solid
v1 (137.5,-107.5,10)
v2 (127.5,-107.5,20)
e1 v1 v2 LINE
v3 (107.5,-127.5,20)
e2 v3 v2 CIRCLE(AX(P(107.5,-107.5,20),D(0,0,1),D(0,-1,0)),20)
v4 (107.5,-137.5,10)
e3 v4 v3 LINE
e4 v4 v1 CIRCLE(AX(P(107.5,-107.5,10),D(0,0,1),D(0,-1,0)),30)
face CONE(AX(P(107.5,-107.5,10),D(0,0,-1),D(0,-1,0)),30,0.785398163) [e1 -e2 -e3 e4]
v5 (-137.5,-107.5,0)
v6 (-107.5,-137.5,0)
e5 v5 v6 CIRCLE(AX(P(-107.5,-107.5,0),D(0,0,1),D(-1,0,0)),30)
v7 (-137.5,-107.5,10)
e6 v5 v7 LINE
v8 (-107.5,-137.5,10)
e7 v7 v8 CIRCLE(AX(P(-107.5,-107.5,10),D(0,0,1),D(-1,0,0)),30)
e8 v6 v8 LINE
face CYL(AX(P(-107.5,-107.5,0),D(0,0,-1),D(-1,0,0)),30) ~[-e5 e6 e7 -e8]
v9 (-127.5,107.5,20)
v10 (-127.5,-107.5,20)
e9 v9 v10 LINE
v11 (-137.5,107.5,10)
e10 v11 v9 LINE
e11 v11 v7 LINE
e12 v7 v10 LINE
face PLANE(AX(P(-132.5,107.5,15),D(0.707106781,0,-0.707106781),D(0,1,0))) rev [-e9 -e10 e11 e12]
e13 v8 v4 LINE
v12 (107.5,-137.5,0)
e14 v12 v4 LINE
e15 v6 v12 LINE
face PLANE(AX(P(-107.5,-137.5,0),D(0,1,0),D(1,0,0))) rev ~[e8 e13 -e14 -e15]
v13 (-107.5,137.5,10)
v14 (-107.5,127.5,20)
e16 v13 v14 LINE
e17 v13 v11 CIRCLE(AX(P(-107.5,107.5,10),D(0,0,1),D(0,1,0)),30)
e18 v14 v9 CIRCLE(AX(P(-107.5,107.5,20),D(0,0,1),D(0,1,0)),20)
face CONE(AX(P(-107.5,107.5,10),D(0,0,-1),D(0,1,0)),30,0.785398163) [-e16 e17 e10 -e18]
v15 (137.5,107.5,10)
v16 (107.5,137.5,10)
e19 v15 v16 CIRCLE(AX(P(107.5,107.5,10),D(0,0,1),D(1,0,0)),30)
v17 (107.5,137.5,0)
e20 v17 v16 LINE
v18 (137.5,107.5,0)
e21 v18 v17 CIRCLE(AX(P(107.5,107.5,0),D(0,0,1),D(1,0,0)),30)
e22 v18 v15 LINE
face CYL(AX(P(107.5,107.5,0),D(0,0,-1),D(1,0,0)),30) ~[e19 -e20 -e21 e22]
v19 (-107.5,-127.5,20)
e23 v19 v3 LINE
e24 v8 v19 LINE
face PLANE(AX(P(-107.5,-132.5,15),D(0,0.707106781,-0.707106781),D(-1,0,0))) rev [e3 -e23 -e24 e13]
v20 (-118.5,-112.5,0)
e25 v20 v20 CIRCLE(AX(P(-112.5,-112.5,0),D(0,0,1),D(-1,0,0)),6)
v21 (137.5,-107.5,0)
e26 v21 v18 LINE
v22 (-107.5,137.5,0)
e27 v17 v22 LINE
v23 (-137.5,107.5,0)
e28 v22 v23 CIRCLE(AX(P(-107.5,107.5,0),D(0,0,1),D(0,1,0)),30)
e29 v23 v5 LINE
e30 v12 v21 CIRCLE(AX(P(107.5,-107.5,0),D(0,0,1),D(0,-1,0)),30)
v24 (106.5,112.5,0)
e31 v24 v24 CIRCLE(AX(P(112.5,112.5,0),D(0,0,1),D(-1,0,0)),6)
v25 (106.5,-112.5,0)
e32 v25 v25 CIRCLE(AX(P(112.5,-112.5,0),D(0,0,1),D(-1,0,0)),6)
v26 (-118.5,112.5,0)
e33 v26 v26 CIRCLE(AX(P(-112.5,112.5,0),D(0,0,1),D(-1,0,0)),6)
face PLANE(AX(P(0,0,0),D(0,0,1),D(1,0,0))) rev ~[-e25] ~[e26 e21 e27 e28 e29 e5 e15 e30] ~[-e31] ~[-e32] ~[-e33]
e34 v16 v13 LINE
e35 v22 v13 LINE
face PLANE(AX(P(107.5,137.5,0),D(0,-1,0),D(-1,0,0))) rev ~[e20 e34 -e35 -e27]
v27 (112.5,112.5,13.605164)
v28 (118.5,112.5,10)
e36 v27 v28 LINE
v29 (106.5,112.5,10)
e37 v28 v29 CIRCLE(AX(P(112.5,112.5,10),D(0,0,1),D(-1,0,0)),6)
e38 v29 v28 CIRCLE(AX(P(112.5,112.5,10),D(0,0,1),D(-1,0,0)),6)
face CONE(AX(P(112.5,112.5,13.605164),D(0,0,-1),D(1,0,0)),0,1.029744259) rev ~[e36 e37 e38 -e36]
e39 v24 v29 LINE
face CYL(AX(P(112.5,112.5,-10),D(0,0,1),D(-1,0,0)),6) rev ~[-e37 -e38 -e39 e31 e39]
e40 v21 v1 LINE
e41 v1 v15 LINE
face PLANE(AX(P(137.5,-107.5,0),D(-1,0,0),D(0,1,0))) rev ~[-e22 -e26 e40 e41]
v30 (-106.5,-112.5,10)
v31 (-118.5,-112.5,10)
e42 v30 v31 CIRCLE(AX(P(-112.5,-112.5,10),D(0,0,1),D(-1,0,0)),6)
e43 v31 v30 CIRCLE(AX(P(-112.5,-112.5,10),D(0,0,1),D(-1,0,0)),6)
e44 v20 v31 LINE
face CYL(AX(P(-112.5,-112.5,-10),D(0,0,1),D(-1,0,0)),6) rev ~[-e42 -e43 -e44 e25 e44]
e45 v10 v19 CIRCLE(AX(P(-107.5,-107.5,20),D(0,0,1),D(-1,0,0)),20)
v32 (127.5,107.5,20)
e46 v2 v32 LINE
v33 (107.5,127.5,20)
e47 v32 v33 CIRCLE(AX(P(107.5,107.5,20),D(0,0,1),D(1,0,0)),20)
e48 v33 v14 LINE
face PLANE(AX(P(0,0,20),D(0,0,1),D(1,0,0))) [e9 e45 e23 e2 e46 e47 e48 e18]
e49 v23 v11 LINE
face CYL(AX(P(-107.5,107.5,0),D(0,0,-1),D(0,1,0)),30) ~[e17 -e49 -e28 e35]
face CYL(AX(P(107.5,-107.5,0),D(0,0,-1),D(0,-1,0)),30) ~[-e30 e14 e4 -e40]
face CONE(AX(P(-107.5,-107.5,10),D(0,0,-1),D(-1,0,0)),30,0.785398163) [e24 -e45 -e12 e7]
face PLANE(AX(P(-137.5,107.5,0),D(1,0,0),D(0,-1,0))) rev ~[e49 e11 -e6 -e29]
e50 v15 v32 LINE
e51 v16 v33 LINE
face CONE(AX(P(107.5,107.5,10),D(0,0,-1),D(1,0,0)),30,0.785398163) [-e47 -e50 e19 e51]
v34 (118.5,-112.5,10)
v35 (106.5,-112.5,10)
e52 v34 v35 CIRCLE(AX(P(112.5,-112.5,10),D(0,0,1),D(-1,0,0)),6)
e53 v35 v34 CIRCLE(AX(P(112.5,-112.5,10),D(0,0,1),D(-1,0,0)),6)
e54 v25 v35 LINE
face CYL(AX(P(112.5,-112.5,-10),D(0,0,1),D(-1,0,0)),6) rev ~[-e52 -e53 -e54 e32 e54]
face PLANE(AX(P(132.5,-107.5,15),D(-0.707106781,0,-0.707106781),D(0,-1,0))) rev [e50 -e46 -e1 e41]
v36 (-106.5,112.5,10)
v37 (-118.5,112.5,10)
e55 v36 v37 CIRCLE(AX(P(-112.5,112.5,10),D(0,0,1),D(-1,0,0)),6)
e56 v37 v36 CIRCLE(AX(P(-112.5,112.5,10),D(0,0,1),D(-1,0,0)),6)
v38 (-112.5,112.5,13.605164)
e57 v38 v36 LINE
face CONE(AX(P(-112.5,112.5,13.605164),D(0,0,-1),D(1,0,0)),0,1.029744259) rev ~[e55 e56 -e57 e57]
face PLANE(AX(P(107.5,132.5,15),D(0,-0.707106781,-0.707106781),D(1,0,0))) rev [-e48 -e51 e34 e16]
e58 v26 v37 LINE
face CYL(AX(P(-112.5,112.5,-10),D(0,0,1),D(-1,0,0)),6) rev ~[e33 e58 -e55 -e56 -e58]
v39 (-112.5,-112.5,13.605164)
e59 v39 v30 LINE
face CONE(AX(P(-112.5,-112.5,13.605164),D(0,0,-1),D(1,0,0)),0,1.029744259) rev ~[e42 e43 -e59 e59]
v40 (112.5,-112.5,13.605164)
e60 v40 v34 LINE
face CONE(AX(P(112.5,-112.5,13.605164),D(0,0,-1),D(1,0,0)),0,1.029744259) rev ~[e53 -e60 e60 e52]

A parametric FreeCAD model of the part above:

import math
import FreeCAD as App
import Part
import Sketcher
Q = App.Units.Quantity


def edges_at(feature, points):
    """Names of the edges that pass closest to the given points."""
    edges = feature.Shape.Edges
    near = lambda p: min(range(len(edges)), key=lambda i: edges[i].distToShape(Part.Vertex(*p))[0])
    return sorted({f"Edge{near(p) + 1}" for p in points})

doc = App.newDocument("Part")
body = doc.addObject("PartDesign::Body", "Body")

# Sketch on XY plane
sketch1 = body.newObject("Sketcher::SketchObject", "Sketch")
sketch1.AttachmentSupport = (doc.getObject("XY_Plane"), [""])
sketch1.MapMode = "FlatFace"
sketch1.addGeometry([
    Part.LineSegment(App.Vector(108, 138, 0), App.Vector(-108, 138, 0)),  # 0
    Part.ArcOfCircle(Part.Circle(App.Vector(-108, 108, 0), App.Vector(0, 0, 1), 30), math.radians(90), math.radians(180)),  # 1
    Part.LineSegment(App.Vector(-138, 108, 0), App.Vector(-138, -108, 0)),  # 2
    Part.ArcOfCircle(Part.Circle(App.Vector(-108, -108, 0), App.Vector(0, 0, 1), 30), math.radians(180), math.radians(270)),  # 3
    Part.LineSegment(App.Vector(-108, -138, 0), App.Vector(108, -138, 0)),  # 4
    Part.ArcOfCircle(Part.Circle(App.Vector(108, -108, 0), App.Vector(0, 0, 1), 30), math.radians(-90), math.radians(0)),  # 5
    Part.LineSegment(App.Vector(138, -108, 0), App.Vector(138, 108, 0)),  # 6
    Part.ArcOfCircle(Part.Circle(App.Vector(108, 108, 0), App.Vector(0, 0, 1), 30), math.radians(0), math.radians(90)),  # 7
], False)
sketch1.addConstraint([
    Sketcher.Constraint("Tangent", 0, 2, 1, 1),
    Sketcher.Constraint("Tangent", 1, 2, 2, 1),
    Sketcher.Constraint("Tangent", 2, 2, 3, 1),
    Sketcher.Constraint("Tangent", 3, 2, 4, 1),
    Sketcher.Constraint("Tangent", 4, 2, 5, 1),
    Sketcher.Constraint("Tangent", 5, 2, 6, 1),
    Sketcher.Constraint("Tangent", 6, 2, 7, 1),
    Sketcher.Constraint("Tangent", 7, 2, 0, 1),
    Sketcher.Constraint("Horizontal", 0),
    Sketcher.Constraint("Vertical", 2),
    Sketcher.Constraint("Horizontal", 4),
    Sketcher.Constraint("Vertical", 6),
    Sketcher.Constraint("Equal", 1, 3),
    Sketcher.Constraint("Equal", 3, 5),
    Sketcher.Constraint("Equal", 5, 7),
    Sketcher.Constraint("Symmetric", 1, 3, 5, 3, -1, 1),
    Sketcher.Constraint("Equal", 4, 2),
    Sketcher.Constraint("Radius", 1, Q("30 mm")),
    Sketcher.Constraint("DistanceX", 0, 2, 0, 1, Q("215 mm")),
])
pad1 = body.newObject("PartDesign::Pad", "Pad")
pad1.Profile = sketch1
pad1.Length = 20
doc.recompute()

chamfer = body.newObject("PartDesign::Chamfer", "Chamfer")
chamfer.Base = (pad1, edges_at(pad1, [(-137.5, 0, 20)]))
chamfer.Size = 10

# Sketch on XY plane
sketch2 = body.newObject("Sketcher::SketchObject", "Sketch001")
sketch2.AttachmentSupport = (doc.getObject("XY_Plane"), [""])
sketch2.MapMode = "FlatFace"
sketch2.addGeometry([
    Part.Circle(App.Vector(-112, -112, 0), App.Vector(0, 0, 1), 6),
    Part.Circle(App.Vector(112, -112, 0), App.Vector(0, 0, 1), 6),
    Part.Circle(App.Vector(112, 112, 0), App.Vector(0, 0, 1), 6),
    Part.Circle(App.Vector(-112, 112, 0), App.Vector(0, 0, 1), 6),
], False)
sketch2.addConstraint([
    Sketcher.Constraint("Equal", 0, 1),
    Sketcher.Constraint("Equal", 1, 2),
    Sketcher.Constraint("Equal", 2, 3),
    Sketcher.Constraint("Symmetric", 0, 3, 2, 3, -1, 1),
    Sketcher.Constraint("Symmetric", 1, 3, 3, 3, -1, 1),
    Sketcher.Constraint("Symmetric", 0, 3, 1, 3, -2),
    Sketcher.Constraint("Diameter", 0, Q("12 mm")),
    Sketcher.Constraint("DistanceX", 0, 3, 1, 3, Q("225 mm")),
    Sketcher.Constraint("DistanceY", 1, 3, 2, 3, Q("225 mm")),
])
doc.recompute()
hole = body.newObject("PartDesign::Hole", "Hole")
hole.Profile = sketch2
hole.ThreadType = "None"
hole.Diameter = 12
hole.DepthType = "Dimension"
hole.Depth = 10
hole.DrillPoint = "Angled"
hole.DrillPointAngle = 118
hole.Reversed = True

doc.recompute()
